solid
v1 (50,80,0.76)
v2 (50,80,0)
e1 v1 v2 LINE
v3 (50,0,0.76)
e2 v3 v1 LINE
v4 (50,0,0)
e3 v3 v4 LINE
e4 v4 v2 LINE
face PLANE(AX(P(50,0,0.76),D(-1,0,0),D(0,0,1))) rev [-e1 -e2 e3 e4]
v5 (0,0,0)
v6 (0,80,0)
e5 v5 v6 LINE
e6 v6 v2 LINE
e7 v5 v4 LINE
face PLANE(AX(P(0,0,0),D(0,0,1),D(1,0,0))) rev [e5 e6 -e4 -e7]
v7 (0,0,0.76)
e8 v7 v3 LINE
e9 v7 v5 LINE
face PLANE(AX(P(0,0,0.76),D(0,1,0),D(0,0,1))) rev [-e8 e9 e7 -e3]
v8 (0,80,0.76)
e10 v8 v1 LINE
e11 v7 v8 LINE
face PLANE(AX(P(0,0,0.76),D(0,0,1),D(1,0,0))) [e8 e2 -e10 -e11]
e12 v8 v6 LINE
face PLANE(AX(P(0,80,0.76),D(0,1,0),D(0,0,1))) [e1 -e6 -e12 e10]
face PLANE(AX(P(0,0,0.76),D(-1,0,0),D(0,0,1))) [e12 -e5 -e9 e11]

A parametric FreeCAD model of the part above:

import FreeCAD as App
import Part
import Sketcher
from FreeCAD import Vector
Q = App.Units.Quantity


def add_polygon(sketch, points):
    """Adds a closed chain of lines whose ends are joined by coincident constraints."""
    first, n = sketch.GeometryCount, len(points)
    for a, b in zip(points, points[1:] + points[:1]):
        sketch.addGeometry(Part.LineSegment(App.Vector(*a, 0), App.Vector(*b, 0)), False)
    for i in range(n):
        sketch.addConstraint(Sketcher.Constraint("Coincident", first + i, 2, first + (i + 1) % n, 1))

doc = App.newDocument("Part")
body = doc.addObject("PartDesign::Body", "Body")

sketch1 = doc.addObject("Sketcher::SketchObject", "Sketch")
body.addObject(sketch1)
sketch1.AttachmentSupport = (doc.XY_Plane, [""])
sketch1.MapMode = "FlatFace"
add_polygon(sketch1, [(0, 80), (0, 0), (50, 0), (50, 80)])
sketch1.addConstraint([
    Sketcher.Constraint("Vertical", 0),
    Sketcher.Constraint("Horizontal", 1),
    Sketcher.Constraint("Vertical", 2),
    Sketcher.Constraint("Horizontal", 3),
    Sketcher.Constraint("Coincident", 0, 2, -1, 1),
    Sketcher.Constraint("DistanceX", 1, 1, 1, 2, Q("50 mm")),
    Sketcher.Constraint("DistanceY", 0, 2, 0, 1, Q("80 mm")),
])
pad1 = doc.addObject("PartDesign::Pad", "Pad")
body.addObject(pad1)
pad1.Profile = sketch1
pad1.Length = 0.76

doc.recompute()
